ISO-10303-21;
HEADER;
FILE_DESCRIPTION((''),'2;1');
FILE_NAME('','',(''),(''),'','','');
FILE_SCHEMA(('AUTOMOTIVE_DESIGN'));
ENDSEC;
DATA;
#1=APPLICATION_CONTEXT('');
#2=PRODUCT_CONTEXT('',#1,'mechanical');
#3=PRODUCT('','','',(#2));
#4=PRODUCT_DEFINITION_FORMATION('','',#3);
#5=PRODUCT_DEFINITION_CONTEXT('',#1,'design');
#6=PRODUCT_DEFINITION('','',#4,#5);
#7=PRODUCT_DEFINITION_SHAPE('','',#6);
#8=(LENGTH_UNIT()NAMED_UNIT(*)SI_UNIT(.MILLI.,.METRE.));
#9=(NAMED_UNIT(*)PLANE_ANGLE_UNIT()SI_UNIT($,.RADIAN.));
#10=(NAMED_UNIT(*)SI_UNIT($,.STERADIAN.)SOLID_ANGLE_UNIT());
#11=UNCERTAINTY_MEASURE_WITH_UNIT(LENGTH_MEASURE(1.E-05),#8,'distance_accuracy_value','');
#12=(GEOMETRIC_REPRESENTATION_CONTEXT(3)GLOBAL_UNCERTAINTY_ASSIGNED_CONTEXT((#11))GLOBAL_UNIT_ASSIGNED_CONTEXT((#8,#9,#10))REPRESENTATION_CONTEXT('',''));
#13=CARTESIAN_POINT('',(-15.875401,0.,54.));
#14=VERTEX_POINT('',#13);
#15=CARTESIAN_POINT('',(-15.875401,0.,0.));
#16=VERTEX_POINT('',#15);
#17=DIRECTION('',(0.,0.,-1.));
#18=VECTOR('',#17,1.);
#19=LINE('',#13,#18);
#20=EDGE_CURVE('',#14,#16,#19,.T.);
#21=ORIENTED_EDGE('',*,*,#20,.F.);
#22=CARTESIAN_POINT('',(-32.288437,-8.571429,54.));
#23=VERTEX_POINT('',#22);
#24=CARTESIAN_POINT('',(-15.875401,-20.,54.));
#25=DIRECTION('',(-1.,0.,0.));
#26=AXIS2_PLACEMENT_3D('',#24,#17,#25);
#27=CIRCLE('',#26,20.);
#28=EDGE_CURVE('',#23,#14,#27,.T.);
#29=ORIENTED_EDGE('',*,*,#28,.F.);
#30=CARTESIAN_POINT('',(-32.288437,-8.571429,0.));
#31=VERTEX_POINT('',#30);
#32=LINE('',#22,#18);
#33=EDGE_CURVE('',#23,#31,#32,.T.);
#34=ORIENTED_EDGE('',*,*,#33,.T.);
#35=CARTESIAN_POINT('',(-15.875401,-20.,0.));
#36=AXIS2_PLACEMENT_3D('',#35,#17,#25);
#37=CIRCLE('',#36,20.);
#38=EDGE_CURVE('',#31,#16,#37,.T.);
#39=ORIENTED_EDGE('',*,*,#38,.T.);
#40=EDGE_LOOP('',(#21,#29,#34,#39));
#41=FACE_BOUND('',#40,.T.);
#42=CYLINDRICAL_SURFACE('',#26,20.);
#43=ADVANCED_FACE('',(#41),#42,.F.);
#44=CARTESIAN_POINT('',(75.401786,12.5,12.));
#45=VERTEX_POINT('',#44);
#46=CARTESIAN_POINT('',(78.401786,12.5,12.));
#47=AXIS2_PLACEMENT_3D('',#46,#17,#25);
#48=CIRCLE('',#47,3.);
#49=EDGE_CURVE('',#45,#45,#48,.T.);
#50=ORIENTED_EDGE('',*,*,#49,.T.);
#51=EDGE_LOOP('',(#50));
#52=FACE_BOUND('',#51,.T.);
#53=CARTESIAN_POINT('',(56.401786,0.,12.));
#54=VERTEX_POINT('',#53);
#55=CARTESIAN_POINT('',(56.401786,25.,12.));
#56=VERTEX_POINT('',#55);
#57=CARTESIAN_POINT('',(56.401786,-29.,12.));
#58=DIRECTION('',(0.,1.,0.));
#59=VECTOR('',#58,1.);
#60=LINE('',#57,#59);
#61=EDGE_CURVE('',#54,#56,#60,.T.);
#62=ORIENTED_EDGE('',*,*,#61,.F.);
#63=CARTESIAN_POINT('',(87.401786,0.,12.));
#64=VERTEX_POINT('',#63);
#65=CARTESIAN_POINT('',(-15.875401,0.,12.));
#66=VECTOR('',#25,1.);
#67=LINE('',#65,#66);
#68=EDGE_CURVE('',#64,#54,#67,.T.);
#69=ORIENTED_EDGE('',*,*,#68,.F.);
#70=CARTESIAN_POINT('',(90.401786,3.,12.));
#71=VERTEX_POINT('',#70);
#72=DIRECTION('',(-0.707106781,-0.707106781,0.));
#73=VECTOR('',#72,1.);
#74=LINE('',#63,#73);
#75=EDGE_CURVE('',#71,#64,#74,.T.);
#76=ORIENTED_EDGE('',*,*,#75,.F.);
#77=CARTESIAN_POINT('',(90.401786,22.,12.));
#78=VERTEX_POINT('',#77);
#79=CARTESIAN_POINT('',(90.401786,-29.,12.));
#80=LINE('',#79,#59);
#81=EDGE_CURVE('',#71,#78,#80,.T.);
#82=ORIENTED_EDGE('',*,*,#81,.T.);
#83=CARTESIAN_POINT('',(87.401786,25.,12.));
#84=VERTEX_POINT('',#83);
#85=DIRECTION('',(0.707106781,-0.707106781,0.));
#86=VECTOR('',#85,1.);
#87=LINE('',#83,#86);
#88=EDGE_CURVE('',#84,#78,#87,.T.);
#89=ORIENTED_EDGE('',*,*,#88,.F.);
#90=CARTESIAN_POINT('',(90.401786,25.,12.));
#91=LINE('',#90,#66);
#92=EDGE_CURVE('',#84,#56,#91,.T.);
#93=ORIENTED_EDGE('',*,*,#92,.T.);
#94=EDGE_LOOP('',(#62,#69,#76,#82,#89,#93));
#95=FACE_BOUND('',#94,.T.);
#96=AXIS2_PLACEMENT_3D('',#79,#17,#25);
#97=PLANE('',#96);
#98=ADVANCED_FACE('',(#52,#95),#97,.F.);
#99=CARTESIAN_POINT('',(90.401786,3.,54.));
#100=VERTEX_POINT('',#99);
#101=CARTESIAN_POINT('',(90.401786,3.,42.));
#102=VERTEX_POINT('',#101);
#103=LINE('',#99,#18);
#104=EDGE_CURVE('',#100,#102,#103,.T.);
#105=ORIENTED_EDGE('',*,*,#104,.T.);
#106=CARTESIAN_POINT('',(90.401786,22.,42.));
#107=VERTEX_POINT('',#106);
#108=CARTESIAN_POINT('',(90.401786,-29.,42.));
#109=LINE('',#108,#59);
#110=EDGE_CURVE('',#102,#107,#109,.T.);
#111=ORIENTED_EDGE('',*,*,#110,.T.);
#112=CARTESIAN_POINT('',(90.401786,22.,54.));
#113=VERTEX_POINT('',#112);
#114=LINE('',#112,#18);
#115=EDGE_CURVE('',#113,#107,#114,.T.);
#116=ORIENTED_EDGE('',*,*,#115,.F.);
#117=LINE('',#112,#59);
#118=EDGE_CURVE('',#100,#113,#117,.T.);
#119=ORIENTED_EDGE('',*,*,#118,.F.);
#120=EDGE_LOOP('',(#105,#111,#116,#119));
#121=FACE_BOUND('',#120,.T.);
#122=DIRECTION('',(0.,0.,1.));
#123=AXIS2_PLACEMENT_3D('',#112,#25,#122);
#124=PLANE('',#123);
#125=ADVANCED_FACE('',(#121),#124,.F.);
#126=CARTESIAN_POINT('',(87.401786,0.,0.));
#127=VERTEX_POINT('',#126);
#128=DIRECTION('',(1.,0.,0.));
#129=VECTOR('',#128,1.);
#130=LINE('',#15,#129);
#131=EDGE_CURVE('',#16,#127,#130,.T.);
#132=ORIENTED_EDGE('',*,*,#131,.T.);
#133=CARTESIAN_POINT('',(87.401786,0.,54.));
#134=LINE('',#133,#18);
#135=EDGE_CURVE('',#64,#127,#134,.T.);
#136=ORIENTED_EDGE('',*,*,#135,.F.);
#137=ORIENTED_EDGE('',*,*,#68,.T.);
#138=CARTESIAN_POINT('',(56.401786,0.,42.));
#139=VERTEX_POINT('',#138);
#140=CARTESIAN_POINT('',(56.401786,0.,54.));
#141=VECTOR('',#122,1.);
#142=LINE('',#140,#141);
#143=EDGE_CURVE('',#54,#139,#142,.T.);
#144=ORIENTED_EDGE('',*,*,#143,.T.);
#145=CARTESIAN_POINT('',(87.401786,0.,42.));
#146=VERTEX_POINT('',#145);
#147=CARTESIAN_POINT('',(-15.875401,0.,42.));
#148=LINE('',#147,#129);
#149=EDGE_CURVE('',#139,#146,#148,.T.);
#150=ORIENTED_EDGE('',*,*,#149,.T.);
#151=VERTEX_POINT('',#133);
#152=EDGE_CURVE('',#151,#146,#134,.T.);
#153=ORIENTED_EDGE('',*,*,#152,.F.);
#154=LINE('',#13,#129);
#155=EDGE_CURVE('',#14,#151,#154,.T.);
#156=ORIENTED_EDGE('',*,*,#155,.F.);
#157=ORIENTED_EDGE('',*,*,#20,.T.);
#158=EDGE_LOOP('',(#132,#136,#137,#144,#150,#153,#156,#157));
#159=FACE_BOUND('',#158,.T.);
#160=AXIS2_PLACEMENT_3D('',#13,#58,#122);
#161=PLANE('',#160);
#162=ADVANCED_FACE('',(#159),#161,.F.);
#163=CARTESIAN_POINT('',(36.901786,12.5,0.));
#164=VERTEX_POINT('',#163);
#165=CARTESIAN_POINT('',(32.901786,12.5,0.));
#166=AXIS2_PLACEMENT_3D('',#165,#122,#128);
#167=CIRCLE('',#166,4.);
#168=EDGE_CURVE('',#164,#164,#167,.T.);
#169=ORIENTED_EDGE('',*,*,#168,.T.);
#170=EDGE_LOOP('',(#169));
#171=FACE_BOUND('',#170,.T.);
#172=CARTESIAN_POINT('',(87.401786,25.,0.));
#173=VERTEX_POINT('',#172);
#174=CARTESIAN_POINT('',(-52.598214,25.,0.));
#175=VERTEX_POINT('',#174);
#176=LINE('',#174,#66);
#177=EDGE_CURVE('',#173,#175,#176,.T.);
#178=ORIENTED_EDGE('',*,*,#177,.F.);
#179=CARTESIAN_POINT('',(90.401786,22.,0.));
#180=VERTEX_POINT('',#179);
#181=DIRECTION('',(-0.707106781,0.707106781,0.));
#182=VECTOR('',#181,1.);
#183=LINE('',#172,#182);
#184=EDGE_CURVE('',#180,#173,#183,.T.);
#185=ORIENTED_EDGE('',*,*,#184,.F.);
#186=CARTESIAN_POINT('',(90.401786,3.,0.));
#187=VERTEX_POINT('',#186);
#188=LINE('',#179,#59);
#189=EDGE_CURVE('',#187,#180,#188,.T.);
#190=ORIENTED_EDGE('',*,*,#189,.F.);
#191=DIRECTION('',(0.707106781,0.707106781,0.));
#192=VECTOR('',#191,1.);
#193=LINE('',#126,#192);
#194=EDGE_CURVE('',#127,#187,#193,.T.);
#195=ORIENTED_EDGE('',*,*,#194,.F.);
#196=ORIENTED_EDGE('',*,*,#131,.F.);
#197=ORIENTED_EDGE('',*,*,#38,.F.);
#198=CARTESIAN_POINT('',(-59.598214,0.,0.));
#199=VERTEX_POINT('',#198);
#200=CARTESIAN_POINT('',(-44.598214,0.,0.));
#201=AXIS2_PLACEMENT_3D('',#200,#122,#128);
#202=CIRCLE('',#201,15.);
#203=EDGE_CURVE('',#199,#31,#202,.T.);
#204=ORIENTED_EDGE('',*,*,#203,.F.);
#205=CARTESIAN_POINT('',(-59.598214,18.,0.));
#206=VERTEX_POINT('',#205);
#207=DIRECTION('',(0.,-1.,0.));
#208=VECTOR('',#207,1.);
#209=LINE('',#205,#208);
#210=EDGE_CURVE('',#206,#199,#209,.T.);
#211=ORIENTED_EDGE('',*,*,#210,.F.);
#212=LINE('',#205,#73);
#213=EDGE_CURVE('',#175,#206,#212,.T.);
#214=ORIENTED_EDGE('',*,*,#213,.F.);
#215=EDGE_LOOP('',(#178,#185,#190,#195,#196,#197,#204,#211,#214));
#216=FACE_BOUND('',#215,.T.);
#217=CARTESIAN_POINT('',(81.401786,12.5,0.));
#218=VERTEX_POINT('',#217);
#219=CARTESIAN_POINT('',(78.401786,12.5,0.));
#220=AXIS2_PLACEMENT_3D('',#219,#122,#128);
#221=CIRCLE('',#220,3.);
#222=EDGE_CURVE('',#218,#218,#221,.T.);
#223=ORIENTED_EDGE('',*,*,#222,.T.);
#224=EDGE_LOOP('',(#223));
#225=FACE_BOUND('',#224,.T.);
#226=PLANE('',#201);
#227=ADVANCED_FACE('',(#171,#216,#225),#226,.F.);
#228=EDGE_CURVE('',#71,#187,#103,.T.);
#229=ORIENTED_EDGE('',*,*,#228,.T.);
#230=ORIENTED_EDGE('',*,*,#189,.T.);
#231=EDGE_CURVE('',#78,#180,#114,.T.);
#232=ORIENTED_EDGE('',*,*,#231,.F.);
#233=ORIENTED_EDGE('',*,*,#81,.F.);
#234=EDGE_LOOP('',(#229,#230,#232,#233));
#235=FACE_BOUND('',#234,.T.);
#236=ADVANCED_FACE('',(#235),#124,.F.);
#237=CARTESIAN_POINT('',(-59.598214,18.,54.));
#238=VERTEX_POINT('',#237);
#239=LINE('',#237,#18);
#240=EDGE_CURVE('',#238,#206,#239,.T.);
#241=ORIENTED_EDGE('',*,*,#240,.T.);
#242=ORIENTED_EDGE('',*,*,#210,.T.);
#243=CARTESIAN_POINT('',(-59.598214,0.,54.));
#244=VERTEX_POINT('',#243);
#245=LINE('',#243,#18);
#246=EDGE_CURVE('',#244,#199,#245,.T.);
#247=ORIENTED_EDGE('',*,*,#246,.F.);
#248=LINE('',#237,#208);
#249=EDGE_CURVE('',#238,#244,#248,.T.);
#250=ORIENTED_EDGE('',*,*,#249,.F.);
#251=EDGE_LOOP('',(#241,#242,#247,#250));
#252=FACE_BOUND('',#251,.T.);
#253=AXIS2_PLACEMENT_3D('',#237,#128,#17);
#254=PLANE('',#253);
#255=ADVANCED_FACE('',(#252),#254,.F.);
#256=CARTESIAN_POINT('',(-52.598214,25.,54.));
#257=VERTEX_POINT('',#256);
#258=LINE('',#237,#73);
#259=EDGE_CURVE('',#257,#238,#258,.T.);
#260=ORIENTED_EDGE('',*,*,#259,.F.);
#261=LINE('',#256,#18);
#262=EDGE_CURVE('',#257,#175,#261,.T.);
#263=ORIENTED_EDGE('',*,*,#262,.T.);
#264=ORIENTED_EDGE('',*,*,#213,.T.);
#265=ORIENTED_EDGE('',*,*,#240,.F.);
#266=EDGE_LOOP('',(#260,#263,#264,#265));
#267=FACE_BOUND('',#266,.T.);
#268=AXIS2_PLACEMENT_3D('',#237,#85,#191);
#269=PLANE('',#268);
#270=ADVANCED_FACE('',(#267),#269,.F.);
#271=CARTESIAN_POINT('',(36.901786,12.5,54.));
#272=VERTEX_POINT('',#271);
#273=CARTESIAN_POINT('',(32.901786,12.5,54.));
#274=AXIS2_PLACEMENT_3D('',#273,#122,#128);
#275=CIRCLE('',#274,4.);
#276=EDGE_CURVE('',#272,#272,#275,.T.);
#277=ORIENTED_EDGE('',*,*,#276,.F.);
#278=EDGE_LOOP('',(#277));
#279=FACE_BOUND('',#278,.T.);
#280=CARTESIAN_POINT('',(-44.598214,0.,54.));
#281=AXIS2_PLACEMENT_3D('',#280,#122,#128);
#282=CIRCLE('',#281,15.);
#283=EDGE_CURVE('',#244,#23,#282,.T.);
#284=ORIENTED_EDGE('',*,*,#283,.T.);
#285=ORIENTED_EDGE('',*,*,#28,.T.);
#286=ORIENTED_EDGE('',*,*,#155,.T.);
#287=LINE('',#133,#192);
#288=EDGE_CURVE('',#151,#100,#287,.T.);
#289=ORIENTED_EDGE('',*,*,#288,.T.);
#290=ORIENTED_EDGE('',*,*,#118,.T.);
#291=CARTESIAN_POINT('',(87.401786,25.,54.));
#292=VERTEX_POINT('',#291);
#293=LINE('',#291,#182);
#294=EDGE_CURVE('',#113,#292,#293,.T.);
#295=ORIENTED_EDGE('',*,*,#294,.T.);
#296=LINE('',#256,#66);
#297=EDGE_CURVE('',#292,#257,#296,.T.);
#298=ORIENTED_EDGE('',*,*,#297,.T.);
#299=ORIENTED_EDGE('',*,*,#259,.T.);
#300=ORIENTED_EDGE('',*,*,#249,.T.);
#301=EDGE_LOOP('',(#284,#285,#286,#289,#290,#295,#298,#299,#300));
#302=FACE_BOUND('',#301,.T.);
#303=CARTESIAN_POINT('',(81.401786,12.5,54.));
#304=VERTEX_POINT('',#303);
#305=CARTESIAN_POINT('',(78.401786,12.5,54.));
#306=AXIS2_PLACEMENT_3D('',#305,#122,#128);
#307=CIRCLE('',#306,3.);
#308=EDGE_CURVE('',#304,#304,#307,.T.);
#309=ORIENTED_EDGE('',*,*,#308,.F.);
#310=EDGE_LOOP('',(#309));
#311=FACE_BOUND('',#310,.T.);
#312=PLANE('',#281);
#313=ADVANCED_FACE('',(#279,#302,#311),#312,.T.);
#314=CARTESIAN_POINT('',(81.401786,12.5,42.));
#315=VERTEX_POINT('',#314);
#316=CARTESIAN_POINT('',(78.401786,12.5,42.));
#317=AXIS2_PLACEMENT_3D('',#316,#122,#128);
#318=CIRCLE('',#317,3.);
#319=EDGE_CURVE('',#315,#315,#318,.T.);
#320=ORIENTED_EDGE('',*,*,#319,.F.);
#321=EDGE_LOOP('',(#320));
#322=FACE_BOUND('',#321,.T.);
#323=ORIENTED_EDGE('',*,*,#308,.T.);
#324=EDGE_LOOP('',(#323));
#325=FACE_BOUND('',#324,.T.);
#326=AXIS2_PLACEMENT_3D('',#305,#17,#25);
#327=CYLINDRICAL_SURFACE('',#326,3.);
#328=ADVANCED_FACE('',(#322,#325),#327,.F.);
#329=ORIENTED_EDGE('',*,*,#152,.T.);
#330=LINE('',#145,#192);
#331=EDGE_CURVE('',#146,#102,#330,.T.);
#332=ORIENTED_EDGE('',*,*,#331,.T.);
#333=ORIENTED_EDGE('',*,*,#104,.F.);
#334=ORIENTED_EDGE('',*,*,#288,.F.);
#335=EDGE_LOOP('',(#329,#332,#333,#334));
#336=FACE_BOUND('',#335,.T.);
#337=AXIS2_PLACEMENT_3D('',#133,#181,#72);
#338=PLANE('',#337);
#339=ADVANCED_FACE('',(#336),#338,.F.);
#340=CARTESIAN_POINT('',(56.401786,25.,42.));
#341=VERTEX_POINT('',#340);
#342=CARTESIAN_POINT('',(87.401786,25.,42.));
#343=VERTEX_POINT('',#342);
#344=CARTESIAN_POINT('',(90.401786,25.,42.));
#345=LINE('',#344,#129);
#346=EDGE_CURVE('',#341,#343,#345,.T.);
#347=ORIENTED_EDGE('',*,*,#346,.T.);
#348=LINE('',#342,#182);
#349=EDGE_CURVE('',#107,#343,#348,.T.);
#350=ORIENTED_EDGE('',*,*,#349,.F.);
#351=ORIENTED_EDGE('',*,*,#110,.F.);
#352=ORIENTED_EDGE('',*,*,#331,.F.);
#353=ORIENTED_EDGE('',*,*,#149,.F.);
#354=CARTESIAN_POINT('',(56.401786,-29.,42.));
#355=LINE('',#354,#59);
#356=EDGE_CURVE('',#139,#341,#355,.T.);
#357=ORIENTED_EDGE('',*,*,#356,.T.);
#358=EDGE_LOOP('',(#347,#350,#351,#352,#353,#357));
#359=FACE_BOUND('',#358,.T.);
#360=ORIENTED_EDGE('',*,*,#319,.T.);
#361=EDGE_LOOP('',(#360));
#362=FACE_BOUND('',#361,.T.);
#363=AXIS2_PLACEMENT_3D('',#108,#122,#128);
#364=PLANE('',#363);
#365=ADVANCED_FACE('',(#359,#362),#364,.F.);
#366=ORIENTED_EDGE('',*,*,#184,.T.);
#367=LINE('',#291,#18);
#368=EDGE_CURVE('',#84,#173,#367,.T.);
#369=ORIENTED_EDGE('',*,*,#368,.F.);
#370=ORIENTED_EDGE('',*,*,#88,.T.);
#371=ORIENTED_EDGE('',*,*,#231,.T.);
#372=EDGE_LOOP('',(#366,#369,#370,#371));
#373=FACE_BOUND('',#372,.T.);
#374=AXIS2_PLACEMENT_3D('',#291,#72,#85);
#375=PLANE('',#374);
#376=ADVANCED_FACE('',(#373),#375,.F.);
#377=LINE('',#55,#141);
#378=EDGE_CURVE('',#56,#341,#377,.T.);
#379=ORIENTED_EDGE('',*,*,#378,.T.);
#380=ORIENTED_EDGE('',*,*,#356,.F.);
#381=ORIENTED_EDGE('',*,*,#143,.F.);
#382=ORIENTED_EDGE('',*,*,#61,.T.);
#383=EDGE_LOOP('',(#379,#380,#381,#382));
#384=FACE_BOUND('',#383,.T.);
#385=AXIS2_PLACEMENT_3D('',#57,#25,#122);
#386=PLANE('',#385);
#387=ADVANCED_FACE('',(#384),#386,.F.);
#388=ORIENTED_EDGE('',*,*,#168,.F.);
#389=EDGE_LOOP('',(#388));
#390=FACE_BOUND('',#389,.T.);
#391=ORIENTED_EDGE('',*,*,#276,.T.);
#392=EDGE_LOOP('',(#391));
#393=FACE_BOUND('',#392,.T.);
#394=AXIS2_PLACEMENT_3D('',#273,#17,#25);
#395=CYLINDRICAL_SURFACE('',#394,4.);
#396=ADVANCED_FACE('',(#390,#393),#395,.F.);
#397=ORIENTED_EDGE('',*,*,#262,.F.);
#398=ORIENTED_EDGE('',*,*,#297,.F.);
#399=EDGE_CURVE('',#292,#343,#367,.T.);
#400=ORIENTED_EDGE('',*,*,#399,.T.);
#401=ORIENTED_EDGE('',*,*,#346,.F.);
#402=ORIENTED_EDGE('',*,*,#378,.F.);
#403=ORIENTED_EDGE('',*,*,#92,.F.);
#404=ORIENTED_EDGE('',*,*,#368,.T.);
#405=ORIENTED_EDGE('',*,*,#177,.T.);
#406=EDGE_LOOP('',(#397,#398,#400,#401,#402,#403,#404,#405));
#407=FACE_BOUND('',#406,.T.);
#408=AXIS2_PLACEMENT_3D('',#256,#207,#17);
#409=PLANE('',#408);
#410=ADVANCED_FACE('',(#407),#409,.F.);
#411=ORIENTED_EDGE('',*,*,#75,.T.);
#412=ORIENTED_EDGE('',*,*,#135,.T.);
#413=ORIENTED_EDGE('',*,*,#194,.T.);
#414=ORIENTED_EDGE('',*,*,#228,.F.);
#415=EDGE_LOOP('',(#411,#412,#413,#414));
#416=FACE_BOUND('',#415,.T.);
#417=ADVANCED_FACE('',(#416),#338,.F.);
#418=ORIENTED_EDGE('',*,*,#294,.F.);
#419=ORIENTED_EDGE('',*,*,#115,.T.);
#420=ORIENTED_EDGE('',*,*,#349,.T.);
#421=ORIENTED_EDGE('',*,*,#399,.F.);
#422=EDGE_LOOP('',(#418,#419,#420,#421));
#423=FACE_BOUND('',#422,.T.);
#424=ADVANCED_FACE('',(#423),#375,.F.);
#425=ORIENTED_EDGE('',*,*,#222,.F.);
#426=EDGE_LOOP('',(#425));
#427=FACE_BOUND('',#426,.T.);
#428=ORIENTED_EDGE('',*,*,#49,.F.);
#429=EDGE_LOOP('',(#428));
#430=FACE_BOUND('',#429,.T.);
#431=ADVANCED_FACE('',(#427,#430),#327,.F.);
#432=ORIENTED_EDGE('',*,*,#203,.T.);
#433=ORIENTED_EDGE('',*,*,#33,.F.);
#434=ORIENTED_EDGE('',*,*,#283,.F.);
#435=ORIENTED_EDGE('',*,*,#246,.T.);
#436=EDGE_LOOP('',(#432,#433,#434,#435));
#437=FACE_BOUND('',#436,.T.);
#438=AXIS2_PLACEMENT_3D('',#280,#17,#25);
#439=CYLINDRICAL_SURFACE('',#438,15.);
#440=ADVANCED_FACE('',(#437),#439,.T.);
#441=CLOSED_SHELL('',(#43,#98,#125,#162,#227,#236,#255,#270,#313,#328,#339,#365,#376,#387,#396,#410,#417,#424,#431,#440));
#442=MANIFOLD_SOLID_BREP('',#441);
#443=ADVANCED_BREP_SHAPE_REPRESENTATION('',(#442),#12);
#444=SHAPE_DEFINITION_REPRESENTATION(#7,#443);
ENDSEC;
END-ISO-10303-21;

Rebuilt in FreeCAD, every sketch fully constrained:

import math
import FreeCAD as App
import Part
import Sketcher

V = App.Vector


def add_polygon(sketch, points):
    """Adds a closed chain of lines whose ends are joined by coincident constraints."""
    first, n = sketch.GeometryCount, len(points)
    for a, b in zip(points, points[1:] + points[:1]):
        sketch.addGeometry(Part.LineSegment(App.Vector(*a, 0), App.Vector(*b, 0)), False)
    for i in range(n):
        sketch.addConstraint(Sketcher.Constraint("Coincident", first + i, 2, first + (i + 1) % n, 1))

doc = App.newDocument("Part")
params = doc.addObject("Spreadsheet::Sheet", "Params")
for row, (alias, value) in enumerate([
    ("sketch1_diameter", "6 mm"),
    ("sketch1_diameter2", "8 mm"),
    ("sketch1_radius", "15 mm"),
    ("sketch1_radius2", "20 mm"),
    ("sketch1_width", "140 mm"),
    ("pad1_length", "54 mm"),
    ("sketch2_width", "34 mm"),
    ("sketch2_height", "30 mm"),
    ("pocket1_length", "54 mm"),
], start=1):
    params.set(f"A{row}", alias)
    params.set(f"B{row}", "=" + value)
    params.setAlias(f"B{row}", alias)

body = doc.addObject("PartDesign::Body", "Body")

sketch1 = body.newObject("Sketcher::SketchObject", "Sketch")
sketch1.AttachmentSupport = (doc.getObject("XY_Plane"), [""])
sketch1.MapMode = "FlatFace"
sketch1.addGeometry([
    Part.LineSegment(V(-52.598214, 25, 0), V(-59.598214, 18, 0)),
    Part.LineSegment(V(-59.598214, 18, 0), V(-59.598214, 0, 0)),
    Part.ArcOfCircle(Part.Circle(V(-44.598214, 0, 0), V(0, 0, 1), 15), math.radians(-180), math.radians(-34.849905)),
    Part.ArcOfCircle(Part.Circle(V(-15.875401, -20, 0), V(0, 0, 1), 20), math.radians(90), math.radians(145.150095)),
    Part.LineSegment(V(-15.875401, 0, 0), V(87.401786, 0, 0)),
    Part.LineSegment(V(87.401786, 0, 0), V(90.401786, 3, 0)),
    Part.LineSegment(V(90.401786, 3, 0), V(90.401786, 22, 0)),
    Part.LineSegment(V(90.401786, 22, 0), V(87.401786, 25, 0)),
    Part.LineSegment(V(87.401786, 25, 0), V(-52.598214, 25, 0)),
    Part.Circle(V(78.401786, 12.5, 0), V(0, 0, 1), 3),
    Part.Circle(V(32.901786, 12.5, 0), V(0, 0, 1), 4),
], False)
sketch1.addConstraint([
    Sketcher.Constraint("Coincident", 0, 2, 1, 1),
    Sketcher.Constraint("Tangent", 1, 2, 2, 1),
    Sketcher.Constraint("Tangent", 2, 2, 3, 2),
    Sketcher.Constraint("Tangent", 3, 1, 4, 1),
    Sketcher.Constraint("Coincident", 4, 2, 5, 1),
    Sketcher.Constraint("Coincident", 5, 2, 6, 1),
    Sketcher.Constraint("Coincident", 6, 2, 7, 1),
    Sketcher.Constraint("Coincident", 7, 2, 8, 1),
    Sketcher.Constraint("Coincident", 8, 2, 0, 1),
    Sketcher.Constraint("Vertical", 1),
    Sketcher.Constraint("Horizontal", 4),
    Sketcher.Constraint("Vertical", 6),
    Sketcher.Constraint("Horizontal", 8),
    Sketcher.Constraint("PointOnObject", 2, 3, -1),
    Sketcher.Constraint("PointOnObject", 3, 1, -1),
    Sketcher.Constraint("Parallel", 0, 5),
    Sketcher.Constraint("Perpendicular", 5, 7),
    Sketcher.Constraint("Horizontal", 9, 3, 10, 3),
    Sketcher.Constraint("Vertical", 4, 2, 7, 2),
    Sketcher.Constraint("Equal", 5, 7),
    Sketcher.Constraint("Diameter", 9, 6.0),
    Sketcher.Constraint("Diameter", 10, 8.0),
    Sketcher.Constraint("Radius", 2, 15.0),
    Sketcher.Constraint("Radius", 3, 20.0),
    Sketcher.Constraint("DistanceX", 8, 2, 8, 1, 140.0),
    Sketcher.Constraint("DistanceY", 1, 2, 1, 1, 18.0),
    Sketcher.Constraint("DistanceY", 6, 1, 6, 2, 19.0),
    Sketcher.Constraint("DistanceY", -1, 1, 5, 2, 3.0),
    Sketcher.Constraint("DistanceX", 2, 3, 9, 3, 123.0),
    Sketcher.Constraint("DistanceY", -1, 1, 9, 3, 12.5),
    Sketcher.Constraint("DistanceX", 10, 3, 9, 3, 45.5),
    Sketcher.Constraint("DistanceX", 3, 3, -1, 1, 15.875401),
])
sketch1.setExpression("Constraints[20]", "Params.sketch1_diameter")
sketch1.setExpression("Constraints[21]", "Params.sketch1_diameter2")
sketch1.setExpression("Constraints[22]", "Params.sketch1_radius")
sketch1.setExpression("Constraints[23]", "Params.sketch1_radius2")
sketch1.setExpression("Constraints[24]", "Params.sketch1_width")
pad1 = body.newObject("PartDesign::Pad", "Pad")
pad1.Profile = sketch1
pad1.setExpression("Length", "Params.pad1_length")

sketch2 = body.newObject("Sketcher::SketchObject", "Sketch001")
sketch2.AttachmentSupport = (doc.getObject("XZ_Plane"), [""])
sketch2.MapMode = "FlatFace"
sketch2.AttachmentOffset = App.Placement(V(0, 0, -25), App.Rotation())
add_polygon(sketch2, [(56.401786, 12), (56.401786, 42), (90.401786, 42), (90.401786, 12)])
sketch2.addConstraint([
    Sketcher.Constraint("Vertical", 0),
    Sketcher.Constraint("Horizontal", 1),
    Sketcher.Constraint("Vertical", 2),
    Sketcher.Constraint("Horizontal", 3),
    Sketcher.Constraint("DistanceX", 1, 1, 1, 2, 34.0),
    Sketcher.Constraint("DistanceY", 0, 1, 0, 2, 30.0),
    Sketcher.Constraint("DistanceY", -1, 1, 0, 2, 42.0),
    Sketcher.Constraint("DistanceX", -1, 1, 0, 2, 56.401786),
])
sketch2.setExpression("Constraints[8]", "Params.sketch2_width")
sketch2.setExpression("Constraints[9]", "Params.sketch2_height")
pocket1 = body.newObject("PartDesign::Pocket", "Pocket")
pocket1.Profile = sketch2
pocket1.setExpression("Length", "Params.pocket1_length")
pocket1.Reversed = True

doc.recompute()
